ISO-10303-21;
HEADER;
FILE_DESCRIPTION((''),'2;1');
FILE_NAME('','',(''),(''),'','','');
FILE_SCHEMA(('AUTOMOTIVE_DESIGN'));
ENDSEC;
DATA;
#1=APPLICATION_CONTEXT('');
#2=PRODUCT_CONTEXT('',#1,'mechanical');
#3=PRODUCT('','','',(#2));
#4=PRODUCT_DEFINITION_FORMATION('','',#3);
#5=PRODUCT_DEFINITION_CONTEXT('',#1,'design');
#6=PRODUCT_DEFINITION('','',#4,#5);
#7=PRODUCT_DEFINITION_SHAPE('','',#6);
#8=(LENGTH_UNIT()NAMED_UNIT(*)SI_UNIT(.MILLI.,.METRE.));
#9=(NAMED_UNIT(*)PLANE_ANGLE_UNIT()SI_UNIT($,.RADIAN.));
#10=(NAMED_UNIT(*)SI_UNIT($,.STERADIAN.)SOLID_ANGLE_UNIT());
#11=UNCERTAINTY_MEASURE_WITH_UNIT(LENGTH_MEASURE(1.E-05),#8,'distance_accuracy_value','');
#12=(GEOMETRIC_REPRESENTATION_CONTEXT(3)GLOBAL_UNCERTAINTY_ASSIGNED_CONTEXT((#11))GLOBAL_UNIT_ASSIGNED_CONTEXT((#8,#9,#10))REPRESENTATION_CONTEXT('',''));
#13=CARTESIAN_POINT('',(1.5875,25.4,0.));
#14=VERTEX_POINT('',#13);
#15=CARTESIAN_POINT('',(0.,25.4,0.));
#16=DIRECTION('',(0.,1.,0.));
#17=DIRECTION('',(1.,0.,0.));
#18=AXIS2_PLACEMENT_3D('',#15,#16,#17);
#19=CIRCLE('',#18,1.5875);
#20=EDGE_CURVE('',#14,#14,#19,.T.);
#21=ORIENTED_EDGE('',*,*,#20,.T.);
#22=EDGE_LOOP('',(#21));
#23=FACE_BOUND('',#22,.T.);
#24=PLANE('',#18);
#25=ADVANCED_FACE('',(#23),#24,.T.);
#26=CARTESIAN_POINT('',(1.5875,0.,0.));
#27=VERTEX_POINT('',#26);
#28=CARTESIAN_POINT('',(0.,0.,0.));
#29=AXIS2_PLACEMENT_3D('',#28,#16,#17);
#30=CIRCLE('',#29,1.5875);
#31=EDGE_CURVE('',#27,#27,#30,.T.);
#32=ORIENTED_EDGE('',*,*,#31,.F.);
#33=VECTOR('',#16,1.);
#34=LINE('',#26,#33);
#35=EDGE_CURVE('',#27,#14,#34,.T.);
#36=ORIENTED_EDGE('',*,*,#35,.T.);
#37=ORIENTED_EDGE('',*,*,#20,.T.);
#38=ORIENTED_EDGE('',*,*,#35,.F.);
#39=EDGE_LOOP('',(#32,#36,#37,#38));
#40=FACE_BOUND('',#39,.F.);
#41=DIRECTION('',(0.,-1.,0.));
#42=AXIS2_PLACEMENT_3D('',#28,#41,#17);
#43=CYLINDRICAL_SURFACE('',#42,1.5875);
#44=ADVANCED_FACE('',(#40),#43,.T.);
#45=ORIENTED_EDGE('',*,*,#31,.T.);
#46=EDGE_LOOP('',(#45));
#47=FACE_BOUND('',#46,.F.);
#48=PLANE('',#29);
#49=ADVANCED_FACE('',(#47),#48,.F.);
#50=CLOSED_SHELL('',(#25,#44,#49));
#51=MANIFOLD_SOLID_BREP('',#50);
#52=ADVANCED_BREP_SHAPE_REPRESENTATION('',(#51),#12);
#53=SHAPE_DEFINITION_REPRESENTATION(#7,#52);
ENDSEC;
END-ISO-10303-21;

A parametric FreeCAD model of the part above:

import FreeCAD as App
import Part
import Sketcher

V = App.Vector
Q = App.Units.Quantity

doc = App.newDocument("Part")
body = doc.addObject("PartDesign::Body", "Body")

sketch1 = body.newObject("Sketcher::SketchObject", "Sketch")
sketch1.AttachmentSupport = (doc.getObject("XZ_Plane"), [""])
sketch1.MapMode = "FlatFace"
sketch1.addGeometry(Part.Circle(V(0, 0, 0), V(0, 0, 1), 1.5875), False)
sketch1.addConstraint(Sketcher.Constraint("Coincident", 0, 3, -1, 1))
sketch1.addConstraint(Sketcher.Constraint("Diameter", 0, Q("0.125 in")))
pad1 = body.newObject("PartDesign::Pad", "Pad")
pad1.Profile = sketch1
pad1.Length = Q("1 in")
pad1.Reversed = True

doc.recompute()
